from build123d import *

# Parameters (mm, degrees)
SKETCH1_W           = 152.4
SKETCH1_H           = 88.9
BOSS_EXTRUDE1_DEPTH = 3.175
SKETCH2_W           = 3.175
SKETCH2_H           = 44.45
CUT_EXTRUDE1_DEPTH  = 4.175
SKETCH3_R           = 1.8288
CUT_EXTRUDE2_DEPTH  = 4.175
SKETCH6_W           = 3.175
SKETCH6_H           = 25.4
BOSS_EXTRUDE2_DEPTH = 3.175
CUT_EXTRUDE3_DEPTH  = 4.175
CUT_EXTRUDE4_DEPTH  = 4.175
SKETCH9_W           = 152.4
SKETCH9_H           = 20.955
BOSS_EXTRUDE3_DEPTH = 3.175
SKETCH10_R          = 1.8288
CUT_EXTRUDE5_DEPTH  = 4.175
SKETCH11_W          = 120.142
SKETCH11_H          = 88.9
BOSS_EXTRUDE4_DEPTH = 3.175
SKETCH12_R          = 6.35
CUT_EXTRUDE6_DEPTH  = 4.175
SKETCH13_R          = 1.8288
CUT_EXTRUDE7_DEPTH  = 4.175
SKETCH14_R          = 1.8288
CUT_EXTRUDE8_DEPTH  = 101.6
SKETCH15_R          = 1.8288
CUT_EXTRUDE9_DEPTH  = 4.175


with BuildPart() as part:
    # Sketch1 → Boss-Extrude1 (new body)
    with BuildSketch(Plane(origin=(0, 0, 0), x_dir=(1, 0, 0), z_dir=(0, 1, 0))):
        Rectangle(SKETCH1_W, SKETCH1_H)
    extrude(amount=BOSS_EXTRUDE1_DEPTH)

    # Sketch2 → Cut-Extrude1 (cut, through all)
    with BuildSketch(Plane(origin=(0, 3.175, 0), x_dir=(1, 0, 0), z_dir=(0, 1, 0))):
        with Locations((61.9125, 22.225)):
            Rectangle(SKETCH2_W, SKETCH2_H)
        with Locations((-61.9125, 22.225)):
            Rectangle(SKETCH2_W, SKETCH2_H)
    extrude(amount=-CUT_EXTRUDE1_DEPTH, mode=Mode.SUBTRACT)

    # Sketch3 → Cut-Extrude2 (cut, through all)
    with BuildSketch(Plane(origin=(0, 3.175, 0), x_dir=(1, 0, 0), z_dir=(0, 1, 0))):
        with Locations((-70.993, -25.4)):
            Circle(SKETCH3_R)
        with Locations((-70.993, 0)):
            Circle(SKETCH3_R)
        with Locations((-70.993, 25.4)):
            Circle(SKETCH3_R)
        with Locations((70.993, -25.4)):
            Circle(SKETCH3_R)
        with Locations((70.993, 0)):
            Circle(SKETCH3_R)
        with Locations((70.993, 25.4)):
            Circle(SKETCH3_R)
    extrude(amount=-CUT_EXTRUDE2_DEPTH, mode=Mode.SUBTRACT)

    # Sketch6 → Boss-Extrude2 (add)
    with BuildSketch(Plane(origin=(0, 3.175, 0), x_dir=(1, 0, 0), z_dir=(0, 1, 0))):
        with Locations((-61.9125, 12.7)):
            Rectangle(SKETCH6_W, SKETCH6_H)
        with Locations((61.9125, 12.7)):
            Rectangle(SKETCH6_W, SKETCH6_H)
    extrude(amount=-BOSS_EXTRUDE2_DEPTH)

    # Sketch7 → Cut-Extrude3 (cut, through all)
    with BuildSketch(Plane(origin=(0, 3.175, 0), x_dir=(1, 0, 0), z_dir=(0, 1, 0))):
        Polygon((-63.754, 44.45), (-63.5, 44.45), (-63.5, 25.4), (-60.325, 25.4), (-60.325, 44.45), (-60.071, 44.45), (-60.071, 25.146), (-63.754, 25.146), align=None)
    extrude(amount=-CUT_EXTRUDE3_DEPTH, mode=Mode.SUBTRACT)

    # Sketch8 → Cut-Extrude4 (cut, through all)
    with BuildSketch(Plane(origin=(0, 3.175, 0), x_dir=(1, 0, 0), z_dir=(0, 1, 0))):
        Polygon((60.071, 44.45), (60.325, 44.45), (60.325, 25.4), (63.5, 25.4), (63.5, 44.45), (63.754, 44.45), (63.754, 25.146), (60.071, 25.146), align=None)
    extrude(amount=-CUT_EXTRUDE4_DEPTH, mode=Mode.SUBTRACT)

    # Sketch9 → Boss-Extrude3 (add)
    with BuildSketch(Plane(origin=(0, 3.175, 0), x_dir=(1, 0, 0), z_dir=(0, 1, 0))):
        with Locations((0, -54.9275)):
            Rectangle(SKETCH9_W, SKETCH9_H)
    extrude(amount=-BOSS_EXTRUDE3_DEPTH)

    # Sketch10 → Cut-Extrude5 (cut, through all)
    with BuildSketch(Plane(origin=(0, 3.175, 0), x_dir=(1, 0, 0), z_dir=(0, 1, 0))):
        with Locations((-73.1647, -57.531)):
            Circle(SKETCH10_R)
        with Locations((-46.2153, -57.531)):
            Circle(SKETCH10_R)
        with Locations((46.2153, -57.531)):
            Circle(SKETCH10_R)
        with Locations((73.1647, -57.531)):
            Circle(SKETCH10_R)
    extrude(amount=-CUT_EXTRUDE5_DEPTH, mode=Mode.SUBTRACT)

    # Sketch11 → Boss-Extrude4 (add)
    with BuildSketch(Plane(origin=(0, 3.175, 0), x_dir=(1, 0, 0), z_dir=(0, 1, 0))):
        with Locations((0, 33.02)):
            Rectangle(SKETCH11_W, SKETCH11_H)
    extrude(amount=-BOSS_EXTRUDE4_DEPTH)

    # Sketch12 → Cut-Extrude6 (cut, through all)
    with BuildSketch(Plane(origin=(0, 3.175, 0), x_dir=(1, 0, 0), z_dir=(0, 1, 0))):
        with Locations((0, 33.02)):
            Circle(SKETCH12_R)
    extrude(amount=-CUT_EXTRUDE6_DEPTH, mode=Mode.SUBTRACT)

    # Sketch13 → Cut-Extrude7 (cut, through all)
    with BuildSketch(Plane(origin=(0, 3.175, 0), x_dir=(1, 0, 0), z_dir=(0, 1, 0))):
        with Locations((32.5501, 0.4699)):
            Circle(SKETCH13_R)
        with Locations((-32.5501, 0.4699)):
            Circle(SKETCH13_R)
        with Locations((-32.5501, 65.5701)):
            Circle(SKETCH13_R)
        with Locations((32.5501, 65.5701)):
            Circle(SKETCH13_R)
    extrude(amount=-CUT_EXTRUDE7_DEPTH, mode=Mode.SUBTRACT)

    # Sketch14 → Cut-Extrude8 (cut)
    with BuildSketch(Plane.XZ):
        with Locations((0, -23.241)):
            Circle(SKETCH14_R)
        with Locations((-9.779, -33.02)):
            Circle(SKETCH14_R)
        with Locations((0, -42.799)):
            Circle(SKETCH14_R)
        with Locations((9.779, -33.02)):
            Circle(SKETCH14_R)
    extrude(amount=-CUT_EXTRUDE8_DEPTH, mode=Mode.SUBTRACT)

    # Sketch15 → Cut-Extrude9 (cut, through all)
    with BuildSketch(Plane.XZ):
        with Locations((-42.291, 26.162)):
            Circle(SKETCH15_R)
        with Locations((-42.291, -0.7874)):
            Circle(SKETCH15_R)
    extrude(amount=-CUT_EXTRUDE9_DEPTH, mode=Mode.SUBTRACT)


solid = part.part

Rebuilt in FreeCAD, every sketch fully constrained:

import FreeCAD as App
import Part
import Sketcher
Q = App.Units.Quantity


def add_polygon(sketch, points):
    """Adds a closed chain of lines whose ends are joined by coincident constraints."""
    first, n = sketch.GeometryCount, len(points)
    for a, b in zip(points, points[1:] + points[:1]):
        sketch.addGeometry(Part.LineSegment(App.Vector(*a, 0), App.Vector(*b, 0)), False)
    for i in range(n):
        sketch.addConstraint(Sketcher.Constraint("Coincident", first + i, 2, first + (i + 1) % n, 1))

doc = App.newDocument("Part")
body = doc.addObject("PartDesign::Body", "Body")

# Sketch on XZ plane
sketch1 = body.newObject("Sketcher::SketchObject", "Sketch")
sketch1.AttachmentSupport = (doc.getObject("XZ_Plane"), [""])
sketch1.MapMode = "FlatFace"
add_polygon(sketch1, [(-76.2, -44.45), (-76.2, 44.45), (76.2, 44.45), (76.2, -44.45)])  # lines 0-3
sketch1.addConstraint([
    Sketcher.Constraint("Vertical", 0),
    Sketcher.Constraint("Horizontal", 1),
    Sketcher.Constraint("Vertical", 2),
    Sketcher.Constraint("Horizontal", 3),
    Sketcher.Constraint("Symmetric", 0, 2, 2, 2, -1, 1),
    Sketcher.Constraint("DistanceX", 1, 1, 1, 2, Q("6 in")),
    Sketcher.Constraint("DistanceY", 0, 1, 0, 2, Q("3.5 in")),
])
pad1 = body.newObject("PartDesign::Pad", "Pad")
pad1.Profile = sketch1
pad1.Length = Q("0.125 in")
pad1.Reversed = True

# Sketch on XZ plane
sketch2 = body.newObject("Sketcher::SketchObject", "Sketch001")
sketch2.AttachmentSupport = (doc.getObject("XZ_Plane"), [""])
sketch2.MapMode = "FlatFace"
sketch2.AttachmentOffset = App.Placement(App.Vector(0, 0, -0.125 * 25.4), App.Rotation())
add_polygon(sketch2, [(60.325, -44.45), (60.325, 0), (63.5, 0), (63.5, -44.45)])  # lines 0-3
add_polygon(sketch2, [(-63.5, -44.45), (-63.5, 0), (-60.325, 0), (-60.325, -44.45)])  # lines 4-7
sketch2.addConstraint([
    Sketcher.Constraint("Vertical", 0),
    Sketcher.Constraint("Horizontal", 1),
    Sketcher.Constraint("Vertical", 2),
    Sketcher.Constraint("Horizontal", 3),
    Sketcher.Constraint("Vertical", 4),
    Sketcher.Constraint("Horizontal", 5),
    Sketcher.Constraint("Vertical", 6),
    Sketcher.Constraint("Horizontal", 7),
    Sketcher.Constraint("Symmetric", 1, 2, 4, 2, -1, 1),
    Sketcher.Constraint("Symmetric", 0, 2, 5, 2, -2),
    Sketcher.Constraint("Horizontal", 3, 2, 6, 2),
    Sketcher.Constraint("DistanceX", 4, 2, 1, 2, Q("5 in")),
    Sketcher.Constraint("DistanceY", 0, 1, 0, 2, Q("1.75 in")),
    Sketcher.Constraint("DistanceX", 1, 1, 1, 2, Q("0.125 in")),
])
pocket1 = body.newObject("PartDesign::Pocket", "Pocket")
pocket1.Profile = sketch2
pocket1.Type = "ThroughAll"
pocket1.Reversed = True

# Sketch on XZ plane
sketch3 = body.newObject("Sketcher::SketchObject", "Sketch002")
sketch3.AttachmentSupport = (doc.getObject("XZ_Plane"), [""])
sketch3.MapMode = "FlatFace"
sketch3.AttachmentOffset = App.Placement(App.Vector(0, 0, -0.125 * 25.4), App.Rotation())
sketch3.addGeometry([
    Part.Circle(App.Vector(-70.993, 25.4, 0), App.Vector(0, 0, 1), 1.8288),  # 0
    Part.Circle(App.Vector(-70.993, 0, 0), App.Vector(0, 0, 1), 1.8288),  # 1
    Part.Circle(App.Vector(-70.993, -25.4, 0), App.Vector(0, 0, 1), 1.8288),  # 2
    Part.Circle(App.Vector(70.993, 25.4, 0), App.Vector(0, 0, 1), 1.8288),  # 3
    Part.Circle(App.Vector(70.993, 0, 0), App.Vector(0, 0, 1), 1.8288),  # 4
    Part.Circle(App.Vector(70.993, -25.4, 0), App.Vector(0, 0, 1), 1.8288),  # 5
], False)
sketch3.addConstraint([
    Sketcher.Constraint("Equal", 0, 1),
    Sketcher.Constraint("Equal", 1, 2),
    Sketcher.Constraint("Equal", 2, 3),
    Sketcher.Constraint("Equal", 3, 4),
    Sketcher.Constraint("Equal", 4, 5),
    Sketcher.Constraint("Symmetric", 2, 3, 3, 3, -1, 1),
    Sketcher.Constraint("Symmetric", 1, 3, 4, 3, -1, 1),
    Sketcher.Constraint("Symmetric", 0, 3, 5, 3, -1, 1),
    Sketcher.Constraint("Symmetric", 0, 3, 3, 3, -2),
    Sketcher.Constraint("PointOnObject", 1, 3, -1),
    Sketcher.Constraint("Vertical", 0, 3, 1, 3),
    Sketcher.Constraint("Diameter", 0, Q("0.144 in")),
    Sketcher.Constraint("DistanceY", -1, 1, 0, 3, Q("1 in")),
    Sketcher.Constraint("DistanceX", 0, 3, 3, 3, Q("5.59 in")),
])
pocket2 = body.newObject("PartDesign::Pocket", "Pocket001")
pocket2.Profile = sketch3
pocket2.Type = "ThroughAll"
pocket2.Reversed = True

# Sketch on XZ plane
sketch4 = body.newObject("Sketcher::SketchObject", "Sketch003")
sketch4.AttachmentSupport = (doc.getObject("XZ_Plane"), [""])
sketch4.MapMode = "FlatFace"
sketch4.AttachmentOffset = App.Placement(App.Vector(0, 0, -0.125 * 25.4), App.Rotation())
add_polygon(sketch4, [(-63.5, -25.4), (-63.5, 0), (-60.325, 0), (-60.325, -25.4)])  # lines 0-3
add_polygon(sketch4, [(60.325, -25.4), (60.325, 0), (63.5, 0), (63.5, -25.4)])  # lines 4-7
sketch4.addConstraint([
    Sketcher.Constraint("Vertical", 0),
    Sketcher.Constraint("Horizontal", 1),
    Sketcher.Constraint("Vertical", 2),
    Sketcher.Constraint("Horizontal", 3),
    Sketcher.Constraint("Vertical", 4),
    Sketcher.Constraint("Horizontal", 5),
    Sketcher.Constraint("Vertical", 6),
    Sketcher.Constraint("Horizontal", 7),
    Sketcher.Constraint("Symmetric", 1, 2, 4, 2, -1, 1),
    Sketcher.Constraint("Symmetric", 0, 2, 5, 2, -2),
    Sketcher.Constraint("Horizontal", 3, 2, 6, 2),
    Sketcher.Constraint("DistanceY", 0, 1, 0, 2, Q("1 in")),
    Sketcher.Constraint("DistanceX", 0, 2, 5, 2, Q("5 in")),
    Sketcher.Constraint("DistanceX", 1, 1, 1, 2, Q("0.125 in")),
])
pad2 = body.newObject("PartDesign::Pad", "Pad001")
pad2.Profile = sketch4
pad2.Length = Q("0.125 in")

# Sketch on XZ plane
sketch5 = body.newObject("Sketcher::SketchObject", "Sketch004")
sketch5.AttachmentSupport = (doc.getObject("XZ_Plane"), [""])
sketch5.MapMode = "FlatFace"
sketch5.AttachmentOffset = App.Placement(App.Vector(0, 0, -0.125 * 25.4), App.Rotation())
add_polygon(sketch5, [(-63.5, -44.45), (-63.754, -44.45), (-63.754, -25.146), (-60.071, -25.146), (-60.071, -44.45), (-60.325, -44.45), (-60.325, -25.4), (-63.5, -25.4)])  # lines 0-7
sketch5.addConstraint([
    Sketcher.Constraint("Horizontal", 0),
    Sketcher.Constraint("Vertical", 1),
    Sketcher.Constraint("Horizontal", 2),
    Sketcher.Constraint("Vertical", 3),
    Sketcher.Constraint("Horizontal", 4),
    Sketcher.Constraint("Vertical", 5),
    Sketcher.Constraint("Horizontal", 6),
    Sketcher.Constraint("Vertical", 7),
    Sketcher.Constraint("Horizontal", 0, 2, 3, 2),
    Sketcher.Constraint("Equal", 0, 4),
    Sketcher.Constraint("DistanceY", 5, 2, -1, 1, Q("1 in")),
    Sketcher.Constraint("DistanceX", 0, 2, 0, 1, Q("0.01 in")),
    Sketcher.Constraint("DistanceY", 1, 1, 1, 2, Q("0.76 in")),
    Sketcher.Constraint("DistanceY", 5, 1, 5, 2, Q("0.75 in")),
    Sketcher.Constraint("DistanceX", 6, 2, -1, 1, Q("2.5 in")),
    Sketcher.Constraint("DistanceX", 2, 1, 2, 2, Q("0.145 in")),
])
pocket3 = body.newObject("PartDesign::Pocket", "Pocket002")
pocket3.Profile = sketch5
pocket3.Type = "ThroughAll"
pocket3.Reversed = True

# Sketch on XZ plane
sketch6 = body.newObject("Sketcher::SketchObject", "Sketch005")
sketch6.AttachmentSupport = (doc.getObject("XZ_Plane"), [""])
sketch6.MapMode = "FlatFace"
sketch6.AttachmentOffset = App.Placement(App.Vector(0, 0, -0.125 * 25.4), App.Rotation())
add_polygon(sketch6, [(60.325, -44.45), (60.071, -44.45), (60.071, -25.146), (63.754, -25.146), (63.754, -44.45), (63.5, -44.45), (63.5, -25.4), (60.325, -25.4)])  # lines 0-7
sketch6.addConstraint([
    Sketcher.Constraint("Horizontal", 0),
    Sketcher.Constraint("Vertical", 1),
    Sketcher.Constraint("Horizontal", 2),
    Sketcher.Constraint("Vertical", 3),
    Sketcher.Constraint("Horizontal", 4),
    Sketcher.Constraint("Vertical", 5),
    Sketcher.Constraint("Horizontal", 6),
    Sketcher.Constraint("Vertical", 7),
    Sketcher.Constraint("Horizontal", 0, 2, 3, 2),
    Sketcher.Constraint("Equal", 0, 4),
    Sketcher.Constraint("DistanceY", 5, 2, -1, 1, Q("1 in")),
    Sketcher.Constraint("DistanceX", 0, 2, 0, 1, Q("0.01 in")),
    Sketcher.Constraint("DistanceY", 1, 1, 1, 2, Q("0.76 in")),
    Sketcher.Constraint("DistanceY", 5, 1, 5, 2, Q("0.75 in")),
    Sketcher.Constraint("DistanceX", -1, 1, 4, 2, Q("2.5 in")),
    Sketcher.Constraint("DistanceX", 2, 1, 2, 2, Q("0.145 in")),
])
pocket4 = body.newObject("PartDesign::Pocket", "Pocket003")
pocket4.Profile = sketch6
pocket4.Type = "ThroughAll"
pocket4.Reversed = True

# Sketch on XZ plane
sketch7 = body.newObject("Sketcher::SketchObject", "Sketch006")
sketch7.AttachmentSupport = (doc.getObject("XZ_Plane"), [""])
sketch7.MapMode = "FlatFace"
sketch7.AttachmentOffset = App.Placement(App.Vector(0, 0, -0.125 * 25.4), App.Rotation())
add_polygon(sketch7, [(-76.2, 44.45), (-76.2, 65.405), (76.2, 65.405), (76.2, 44.45)])  # lines 0-3
sketch7.addConstraint([
    Sketcher.Constraint("Vertical", 0),
    Sketcher.Constraint("Horizontal", 1),
    Sketcher.Constraint("Vertical", 2),
    Sketcher.Constraint("Horizontal", 3),
    Sketcher.Constraint("DistanceX", 1, 1, 1, 2, Q("6 in")),
    Sketcher.Constraint("DistanceX", 0, 2, -1, 1, Q("3 in")),
    Sketcher.Constraint("DistanceY", 0, 1, 0, 2, Q("0.825 in")),
    Sketcher.Constraint("DistanceY", -1, 1, 2, 2, Q("1.75 in")),
])
pad3 = body.newObject("PartDesign::Pad", "Pad002")
pad3.Profile = sketch7
pad3.Length = Q("0.125 in")

# Sketch on XZ plane
sketch8 = body.newObject("Sketcher::SketchObject", "Sketch007")
sketch8.AttachmentSupport = (doc.getObject("XZ_Plane"), [""])
sketch8.MapMode = "FlatFace"
sketch8.AttachmentOffset = App.Placement(App.Vector(0, 0, -0.125 * 25.4), App.Rotation())
sketch8.addGeometry([
    Part.Circle(App.Vector(-73.1647, 57.531, 0), App.Vector(0, 0, 1), 1.8288),
    Part.Circle(App.Vector(-46.2153, 57.531, 0), App.Vector(0, 0, 1), 1.8288),
    Part.Circle(App.Vector(46.2153, 57.531, 0), App.Vector(0, 0, 1), 1.8288),
    Part.Circle(App.Vector(73.1647, 57.531, 0), App.Vector(0, 0, 1), 1.8288),
], False)
sketch8.addConstraint([
    Sketcher.Constraint("Equal", 0, 1),
    Sketcher.Constraint("Equal", 1, 2),
    Sketcher.Constraint("Equal", 2, 3),
    Sketcher.Constraint("Symmetric", 1, 3, 2, 3, -2),
    Sketcher.Constraint("Symmetric", 0, 3, 3, 3, -2),
    Sketcher.Constraint("Horizontal", 0, 3, 1, 3),
    Sketcher.Constraint("Diameter", 0, Q("0.144 in")),
    Sketcher.Constraint("DistanceX", 0, 3, 2, 3, Q("4.7 in")),
    Sketcher.Constraint("DistanceY", -1, 1, 0, 3, Q("2.265 in")),
    Sketcher.Constraint("DistanceX", 0, 3, 1, 3, Q("1.061 in")),
])
pocket5 = body.newObject("PartDesign::Pocket", "Pocket004")
pocket5.Profile = sketch8
pocket5.Type = "ThroughAll"
pocket5.Reversed = True

# Sketch on XZ plane
sketch9 = body.newObject("Sketcher::SketchObject", "Sketch008")
sketch9.AttachmentSupport = (doc.getObject("XZ_Plane"), [""])
sketch9.MapMode = "FlatFace"
sketch9.AttachmentOffset = App.Placement(App.Vector(0, 0, -0.125 * 25.4), App.Rotation())
add_polygon(sketch9, [(-60.071, -77.47), (-60.071, 11.43), (60.071, 11.43), (60.071, -77.47)])  # lines 0-3
sketch9.addConstraint([
    Sketcher.Constraint("Vertical", 0),
    Sketcher.Constraint("Horizontal", 1),
    Sketcher.Constraint("Vertical", 2),
    Sketcher.Constraint("Horizontal", 3),
    Sketcher.Constraint("DistanceY", 0, 1, 0, 2, Q("3.5 in")),
    Sketcher.Constraint("DistanceX", 1, 1, 1, 2, Q("4.73 in")),
    Sketcher.Constraint("DistanceY", -1, 1, 0, 2, Q("0.45 in")),
    Sketcher.Constraint("DistanceX", 0, 2, -1, 1, Q("2.365 in")),
])
pad4 = body.newObject("PartDesign::Pad", "Pad003")
pad4.Profile = sketch9
pad4.Length = Q("0.125 in")

# Sketch on XZ plane
sketch10 = body.newObject("Sketcher::SketchObject", "Sketch009")
sketch10.AttachmentSupport = (doc.getObject("XZ_Plane"), [""])
sketch10.MapMode = "FlatFace"
sketch10.AttachmentOffset = App.Placement(App.Vector(0, 0, -0.125 * 25.4), App.Rotation())
sketch10.addGeometry(Part.Circle(App.Vector(0, -33.02, 0), App.Vector(0, 0, 1), 6.35), False)
sketch10.addConstraint([
    Sketcher.Constraint("PointOnObject", 0, 3, -2),
    Sketcher.Constraint("Diameter", 0, Q("0.5 in")),
    Sketcher.Constraint("DistanceY", 0, 3, -1, 1, Q("1.3 in")),
])
pocket6 = body.newObject("PartDesign::Pocket", "Pocket005")
pocket6.Profile = sketch10
pocket6.Type = "ThroughAll"
pocket6.Reversed = True

# Sketch on XZ plane
sketch11 = body.newObject("Sketcher::SketchObject", "Sketch010")
sketch11.AttachmentSupport = (doc.getObject("XZ_Plane"), [""])
sketch11.MapMode = "FlatFace"
sketch11.AttachmentOffset = App.Placement(App.Vector(0, 0, -0.125 * 25.4), App.Rotation())
sketch11.addGeometry([
    Part.Circle(App.Vector(32.5501, -0.4699, 0), App.Vector(0, 0, 1), 1.8288),
    Part.Circle(App.Vector(-32.5501, -0.4699, 0), App.Vector(0, 0, 1), 1.8288),
    Part.Circle(App.Vector(-32.5501, -65.5701, 0), App.Vector(0, 0, 1), 1.8288),
    Part.Circle(App.Vector(32.5501, -65.5701, 0), App.Vector(0, 0, 1), 1.8288),
], False)
sketch11.addConstraint([
    Sketcher.Constraint("Equal", 0, 1),
    Sketcher.Constraint("Equal", 1, 2),
    Sketcher.Constraint("Equal", 2, 3),
    Sketcher.Constraint("Symmetric", 0, 3, 1, 3, -2),
    Sketcher.Constraint("Symmetric", 2, 3, 3, 3, -2),
    Sketcher.Constraint("Vertical", 1, 3, 2, 3),
    Sketcher.Constraint("Diameter", 0, Q("0.144 in")),
    Sketcher.Constraint("DistanceX", 1, 3, 0, 3, Q("2.563 in")),
    Sketcher.Constraint("DistanceY", 2, 3, 1, 3, Q("2.563 in")),
    Sketcher.Constraint("DistanceY", 0, 3, -1, 1, Q("0.0185 in")),
])
pocket7 = body.newObject("PartDesign::Pocket", "Pocket006")
pocket7.Profile = sketch11
pocket7.Type = "ThroughAll"
pocket7.Reversed = True

# Sketch on XZ plane
sketch12 = body.newObject("Sketcher::SketchObject", "Sketch011")
sketch12.AttachmentSupport = (doc.getObject("XZ_Plane"), [""])
sketch12.MapMode = "FlatFace"
sketch12.addGeometry([
    Part.Circle(App.Vector(0, -23.241, 0), App.Vector(0, 0, 1), 1.8288),
    Part.Circle(App.Vector(-9.779, -33.02, 0), App.Vector(0, 0, 1), 1.8288),
    Part.Circle(App.Vector(0, -42.799, 0), App.Vector(0, 0, 1), 1.8288),
    Part.Circle(App.Vector(9.779, -33.02, 0), App.Vector(0, 0, 1), 1.8288),
], False)
sketch12.addConstraint([
    Sketcher.Constraint("Equal", 0, 1),
    Sketcher.Constraint("Equal", 1, 2),
    Sketcher.Constraint("Equal", 2, 3),
    Sketcher.Constraint("Symmetric", 1, 3, 3, 3, -2),
    Sketcher.Constraint("PointOnObject", 0, 3, -2),
    Sketcher.Constraint("PointOnObject", 2, 3, -2),
    Sketcher.Constraint("Diameter", 0, Q("0.144 in")),
    Sketcher.Constraint("DistanceY", 1, 3, -1, 1, Q("1.3 in")),
    Sketcher.Constraint("DistanceY", 2, 3, 0, 3, Q("0.77 in")),
    Sketcher.Constraint("DistanceX", 1, 3, 3, 3, Q("0.77 in")),
    Sketcher.Constraint("DistanceY", 0, 3, -1, 1, Q("0.915 in")),
])
pocket8 = body.newObject("PartDesign::Pocket", "Pocket007")
pocket8.Profile = sketch12
pocket8.Length = Q("4 in")

# Sketch on XZ plane
sketch13 = body.newObject("Sketcher::SketchObject", "Sketch012")
sketch13.AttachmentSupport = (doc.getObject("XZ_Plane"), [""])
sketch13.MapMode = "FlatFace"
sketch13.addGeometry([
    Part.Circle(App.Vector(-42.291, 26.162, 0), App.Vector(0, 0, 1), 1.8288),
    Part.Circle(App.Vector(-42.291, -0.7874, 0), App.Vector(0, 0, 1), 1.8288),
], False)
sketch13.addConstraint([
    Sketcher.Constraint("Equal", 0, 1),
    Sketcher.Constraint("Vertical", 0, 3, 1, 3),
    Sketcher.Constraint("Diameter", 0, Q("0.144 in")),
    Sketcher.Constraint("DistanceY", -1, 1, 0, 3, Q("1.03 in")),
    Sketcher.Constraint("DistanceX", 0, 3, -1, 1, Q("1.665 in")),
    Sketcher.Constraint("DistanceY", 1, 3, -1, 1, Q("0.031 in")),
])
pocket9 = body.newObject("PartDesign::Pocket", "Pocket008")
pocket9.Profile = sketch13
pocket9.Type = "ThroughAll"

doc.recompute()
